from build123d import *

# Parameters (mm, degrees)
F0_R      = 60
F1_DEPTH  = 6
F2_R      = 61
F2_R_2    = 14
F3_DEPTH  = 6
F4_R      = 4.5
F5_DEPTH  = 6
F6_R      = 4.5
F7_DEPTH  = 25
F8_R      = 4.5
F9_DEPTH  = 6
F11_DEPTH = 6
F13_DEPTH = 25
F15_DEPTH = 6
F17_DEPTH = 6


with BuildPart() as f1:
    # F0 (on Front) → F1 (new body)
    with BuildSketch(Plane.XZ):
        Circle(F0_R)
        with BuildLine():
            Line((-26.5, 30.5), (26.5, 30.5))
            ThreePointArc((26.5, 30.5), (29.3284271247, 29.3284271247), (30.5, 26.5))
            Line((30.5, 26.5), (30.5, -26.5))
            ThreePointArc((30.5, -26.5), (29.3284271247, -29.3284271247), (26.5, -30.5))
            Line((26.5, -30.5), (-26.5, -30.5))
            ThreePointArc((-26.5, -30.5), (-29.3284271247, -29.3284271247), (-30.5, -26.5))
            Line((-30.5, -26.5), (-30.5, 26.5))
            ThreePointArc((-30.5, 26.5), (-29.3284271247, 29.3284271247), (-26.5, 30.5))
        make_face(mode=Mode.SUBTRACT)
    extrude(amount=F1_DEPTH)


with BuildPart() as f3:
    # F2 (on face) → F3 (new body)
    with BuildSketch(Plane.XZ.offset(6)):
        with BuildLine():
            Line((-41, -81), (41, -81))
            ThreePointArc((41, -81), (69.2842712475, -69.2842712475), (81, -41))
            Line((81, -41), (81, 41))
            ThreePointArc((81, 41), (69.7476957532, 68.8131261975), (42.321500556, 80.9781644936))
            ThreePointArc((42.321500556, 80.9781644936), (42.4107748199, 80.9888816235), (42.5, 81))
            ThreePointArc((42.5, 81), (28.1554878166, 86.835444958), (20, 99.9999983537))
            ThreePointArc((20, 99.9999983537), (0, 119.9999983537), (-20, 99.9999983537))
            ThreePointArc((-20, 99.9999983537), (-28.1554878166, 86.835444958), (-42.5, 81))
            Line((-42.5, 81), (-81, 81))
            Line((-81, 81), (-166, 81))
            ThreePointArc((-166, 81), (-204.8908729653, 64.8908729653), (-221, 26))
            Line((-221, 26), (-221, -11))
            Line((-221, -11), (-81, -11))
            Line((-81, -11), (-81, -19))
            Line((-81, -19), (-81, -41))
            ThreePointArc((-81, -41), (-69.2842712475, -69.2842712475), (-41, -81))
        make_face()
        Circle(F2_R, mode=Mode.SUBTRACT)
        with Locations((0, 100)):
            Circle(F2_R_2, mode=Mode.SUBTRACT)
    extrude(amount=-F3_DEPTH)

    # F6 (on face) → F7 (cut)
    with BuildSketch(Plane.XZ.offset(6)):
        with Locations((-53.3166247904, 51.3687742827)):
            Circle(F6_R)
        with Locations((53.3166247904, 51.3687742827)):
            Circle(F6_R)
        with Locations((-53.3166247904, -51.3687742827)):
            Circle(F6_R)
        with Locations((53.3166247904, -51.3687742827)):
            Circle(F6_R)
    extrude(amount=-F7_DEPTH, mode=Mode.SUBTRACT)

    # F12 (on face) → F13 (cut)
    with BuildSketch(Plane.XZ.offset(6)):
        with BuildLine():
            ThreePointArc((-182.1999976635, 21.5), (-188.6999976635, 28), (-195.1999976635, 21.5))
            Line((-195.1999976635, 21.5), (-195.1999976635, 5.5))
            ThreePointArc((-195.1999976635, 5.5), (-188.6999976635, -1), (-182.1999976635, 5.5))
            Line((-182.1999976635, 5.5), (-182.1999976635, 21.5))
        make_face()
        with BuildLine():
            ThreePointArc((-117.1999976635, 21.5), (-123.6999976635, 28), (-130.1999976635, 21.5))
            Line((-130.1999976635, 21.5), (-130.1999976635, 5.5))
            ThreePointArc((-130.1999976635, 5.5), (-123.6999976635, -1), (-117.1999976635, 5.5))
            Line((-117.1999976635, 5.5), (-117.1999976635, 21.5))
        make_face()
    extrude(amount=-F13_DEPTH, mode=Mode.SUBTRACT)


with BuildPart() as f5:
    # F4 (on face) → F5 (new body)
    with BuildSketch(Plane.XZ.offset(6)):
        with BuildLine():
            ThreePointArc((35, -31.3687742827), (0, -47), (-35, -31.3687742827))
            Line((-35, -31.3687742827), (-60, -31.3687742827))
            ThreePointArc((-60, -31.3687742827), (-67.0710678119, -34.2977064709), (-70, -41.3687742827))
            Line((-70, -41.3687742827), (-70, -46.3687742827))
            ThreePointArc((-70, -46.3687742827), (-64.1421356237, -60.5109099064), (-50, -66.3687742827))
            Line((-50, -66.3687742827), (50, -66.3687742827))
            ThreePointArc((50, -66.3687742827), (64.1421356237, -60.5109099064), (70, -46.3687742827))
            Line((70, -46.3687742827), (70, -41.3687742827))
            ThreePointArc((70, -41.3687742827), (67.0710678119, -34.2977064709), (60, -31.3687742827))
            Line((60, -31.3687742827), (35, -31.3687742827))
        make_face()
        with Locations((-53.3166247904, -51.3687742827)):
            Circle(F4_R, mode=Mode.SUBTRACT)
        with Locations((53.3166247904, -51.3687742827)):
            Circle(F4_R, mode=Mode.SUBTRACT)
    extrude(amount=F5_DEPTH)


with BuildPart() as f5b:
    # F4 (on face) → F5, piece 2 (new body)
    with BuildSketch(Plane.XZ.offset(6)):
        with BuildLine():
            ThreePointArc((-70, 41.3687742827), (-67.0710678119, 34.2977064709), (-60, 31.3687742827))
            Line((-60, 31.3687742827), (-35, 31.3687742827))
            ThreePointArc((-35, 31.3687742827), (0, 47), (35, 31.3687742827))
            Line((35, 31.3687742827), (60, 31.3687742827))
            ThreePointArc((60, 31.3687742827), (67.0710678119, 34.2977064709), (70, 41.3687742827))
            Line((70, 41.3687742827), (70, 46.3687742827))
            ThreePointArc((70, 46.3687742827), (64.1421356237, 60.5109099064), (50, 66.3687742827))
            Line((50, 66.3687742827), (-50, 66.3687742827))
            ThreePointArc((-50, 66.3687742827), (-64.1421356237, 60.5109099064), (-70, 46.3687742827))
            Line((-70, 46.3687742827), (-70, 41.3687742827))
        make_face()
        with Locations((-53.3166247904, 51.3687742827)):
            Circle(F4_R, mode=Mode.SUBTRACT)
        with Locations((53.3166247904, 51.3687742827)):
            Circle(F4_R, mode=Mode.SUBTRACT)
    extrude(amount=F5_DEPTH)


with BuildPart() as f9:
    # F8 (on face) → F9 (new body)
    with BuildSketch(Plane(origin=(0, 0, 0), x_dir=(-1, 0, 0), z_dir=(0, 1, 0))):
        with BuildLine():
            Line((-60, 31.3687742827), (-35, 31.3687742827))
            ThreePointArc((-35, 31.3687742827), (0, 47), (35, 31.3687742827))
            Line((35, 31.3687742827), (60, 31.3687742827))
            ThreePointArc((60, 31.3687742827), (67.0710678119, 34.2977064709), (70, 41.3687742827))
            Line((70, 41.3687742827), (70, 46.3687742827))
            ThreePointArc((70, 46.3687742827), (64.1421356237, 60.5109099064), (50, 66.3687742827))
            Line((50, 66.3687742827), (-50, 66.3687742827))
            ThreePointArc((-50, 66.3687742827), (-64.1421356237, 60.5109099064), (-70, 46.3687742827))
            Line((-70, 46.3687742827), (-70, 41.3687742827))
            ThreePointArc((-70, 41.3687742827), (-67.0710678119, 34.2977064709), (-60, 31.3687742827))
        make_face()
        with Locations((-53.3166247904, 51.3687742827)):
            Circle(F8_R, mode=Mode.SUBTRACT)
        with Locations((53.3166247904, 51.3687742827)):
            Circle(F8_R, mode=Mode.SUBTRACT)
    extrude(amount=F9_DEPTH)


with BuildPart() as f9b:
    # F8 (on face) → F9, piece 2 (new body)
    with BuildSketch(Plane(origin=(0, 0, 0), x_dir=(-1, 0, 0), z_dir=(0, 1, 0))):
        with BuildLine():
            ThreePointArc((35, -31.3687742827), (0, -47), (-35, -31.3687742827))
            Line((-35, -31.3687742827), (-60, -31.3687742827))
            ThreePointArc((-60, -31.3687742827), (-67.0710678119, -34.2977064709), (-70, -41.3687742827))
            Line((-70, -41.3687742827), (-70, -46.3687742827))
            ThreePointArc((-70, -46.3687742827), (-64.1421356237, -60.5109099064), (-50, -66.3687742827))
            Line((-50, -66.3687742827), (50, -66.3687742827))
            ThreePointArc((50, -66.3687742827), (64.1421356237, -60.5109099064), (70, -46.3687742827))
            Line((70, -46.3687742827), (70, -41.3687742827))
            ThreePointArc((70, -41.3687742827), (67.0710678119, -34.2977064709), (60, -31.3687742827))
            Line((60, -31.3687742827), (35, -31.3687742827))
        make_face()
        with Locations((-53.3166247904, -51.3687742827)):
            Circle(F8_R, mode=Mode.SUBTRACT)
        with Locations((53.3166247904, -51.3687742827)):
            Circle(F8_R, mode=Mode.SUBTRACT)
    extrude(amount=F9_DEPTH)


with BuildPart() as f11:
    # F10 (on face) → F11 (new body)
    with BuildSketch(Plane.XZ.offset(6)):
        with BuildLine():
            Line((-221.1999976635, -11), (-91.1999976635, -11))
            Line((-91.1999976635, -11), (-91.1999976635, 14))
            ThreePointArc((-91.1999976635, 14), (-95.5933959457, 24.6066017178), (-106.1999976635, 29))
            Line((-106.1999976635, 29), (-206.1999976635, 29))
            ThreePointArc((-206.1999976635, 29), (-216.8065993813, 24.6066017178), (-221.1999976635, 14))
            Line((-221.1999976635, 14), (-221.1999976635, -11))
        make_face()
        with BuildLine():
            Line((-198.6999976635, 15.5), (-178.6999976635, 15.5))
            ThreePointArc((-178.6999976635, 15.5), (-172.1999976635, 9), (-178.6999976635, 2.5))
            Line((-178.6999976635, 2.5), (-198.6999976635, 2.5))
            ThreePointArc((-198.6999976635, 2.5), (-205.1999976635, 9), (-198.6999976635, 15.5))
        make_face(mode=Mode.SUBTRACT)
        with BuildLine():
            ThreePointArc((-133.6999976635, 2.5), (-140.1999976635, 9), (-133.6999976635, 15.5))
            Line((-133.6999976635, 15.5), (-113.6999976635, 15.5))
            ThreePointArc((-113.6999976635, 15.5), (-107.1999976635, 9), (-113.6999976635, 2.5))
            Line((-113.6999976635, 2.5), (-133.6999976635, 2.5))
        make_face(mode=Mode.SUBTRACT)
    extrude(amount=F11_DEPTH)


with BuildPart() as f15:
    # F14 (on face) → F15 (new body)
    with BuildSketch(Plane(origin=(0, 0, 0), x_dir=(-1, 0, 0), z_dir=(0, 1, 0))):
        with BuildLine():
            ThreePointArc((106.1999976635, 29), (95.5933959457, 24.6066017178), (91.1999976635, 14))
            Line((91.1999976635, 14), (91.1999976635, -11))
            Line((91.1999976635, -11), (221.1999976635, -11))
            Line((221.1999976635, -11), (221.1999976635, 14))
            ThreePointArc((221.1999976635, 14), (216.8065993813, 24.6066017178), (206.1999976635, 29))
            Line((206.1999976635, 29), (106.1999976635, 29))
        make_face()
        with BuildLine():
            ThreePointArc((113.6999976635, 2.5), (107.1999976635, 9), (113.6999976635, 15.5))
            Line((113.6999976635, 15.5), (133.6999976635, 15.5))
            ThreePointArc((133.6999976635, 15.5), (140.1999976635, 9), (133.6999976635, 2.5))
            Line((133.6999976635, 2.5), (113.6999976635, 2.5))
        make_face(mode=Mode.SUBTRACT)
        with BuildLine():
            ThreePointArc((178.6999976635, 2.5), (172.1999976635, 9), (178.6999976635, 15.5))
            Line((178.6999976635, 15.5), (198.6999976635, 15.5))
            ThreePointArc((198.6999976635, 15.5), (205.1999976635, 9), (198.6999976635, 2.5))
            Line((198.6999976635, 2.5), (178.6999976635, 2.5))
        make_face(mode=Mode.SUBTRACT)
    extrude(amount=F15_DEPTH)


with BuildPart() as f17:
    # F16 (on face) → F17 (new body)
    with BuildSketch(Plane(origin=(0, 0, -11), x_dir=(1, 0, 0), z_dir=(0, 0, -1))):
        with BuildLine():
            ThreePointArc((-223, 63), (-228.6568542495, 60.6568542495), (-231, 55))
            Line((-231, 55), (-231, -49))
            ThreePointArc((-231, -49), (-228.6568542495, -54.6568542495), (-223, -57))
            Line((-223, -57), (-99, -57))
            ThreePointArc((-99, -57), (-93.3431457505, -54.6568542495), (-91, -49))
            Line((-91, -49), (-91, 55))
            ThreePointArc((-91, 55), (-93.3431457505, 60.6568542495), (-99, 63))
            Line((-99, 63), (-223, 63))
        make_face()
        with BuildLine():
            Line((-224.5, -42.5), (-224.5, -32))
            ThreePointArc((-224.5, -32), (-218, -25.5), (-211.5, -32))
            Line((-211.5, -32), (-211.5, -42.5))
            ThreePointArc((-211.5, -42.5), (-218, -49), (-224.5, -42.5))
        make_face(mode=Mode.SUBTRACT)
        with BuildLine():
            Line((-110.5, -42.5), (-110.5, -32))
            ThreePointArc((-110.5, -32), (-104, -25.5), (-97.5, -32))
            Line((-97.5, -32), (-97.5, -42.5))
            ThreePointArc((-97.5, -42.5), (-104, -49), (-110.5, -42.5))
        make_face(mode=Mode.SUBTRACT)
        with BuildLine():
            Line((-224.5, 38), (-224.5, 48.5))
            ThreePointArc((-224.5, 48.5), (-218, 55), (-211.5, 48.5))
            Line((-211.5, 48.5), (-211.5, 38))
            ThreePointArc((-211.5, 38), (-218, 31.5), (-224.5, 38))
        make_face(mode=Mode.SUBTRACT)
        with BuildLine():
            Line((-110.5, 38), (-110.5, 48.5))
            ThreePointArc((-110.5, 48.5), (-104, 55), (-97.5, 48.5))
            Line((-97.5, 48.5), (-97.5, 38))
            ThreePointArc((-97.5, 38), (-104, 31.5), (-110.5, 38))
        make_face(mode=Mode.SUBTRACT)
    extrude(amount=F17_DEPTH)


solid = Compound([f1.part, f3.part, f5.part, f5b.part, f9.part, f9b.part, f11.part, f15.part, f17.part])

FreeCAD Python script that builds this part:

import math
import FreeCAD as App
import Part
import Sketcher
from FreeCAD import Vector

doc = App.newDocument("Part")
body = doc.addObject("PartDesign::Body", "Body")

# Sketch on XZ plane
sketch1 = body.newObject("Sketcher::SketchObject", "Sketch")
sketch1.AttachmentSupport = (doc.getObject("XZ_Plane"), [""])
sketch1.MapMode = "FlatFace"
sketch1.addGeometry(Part.Circle(Vector(0, 0, 0), Vector(0, 0, 1), 60), False)
sketch1.addGeometry(Part.ArcOfCircle(Part.Circle(Vector(-26.5, 26.5, 0), Vector(0, 0, 1), 4), math.radians(90), math.radians(180)), False)
sketch1.addGeometry(Part.LineSegment(Vector(-26.5, 30.5, 0), Vector(26.5, 30.5, 0)), False)
sketch1.addGeometry(Part.ArcOfCircle(Part.Circle(Vector(26.5, 26.5, 0), Vector(0, 0, 1), 4), math.radians(0), math.radians(90)), False)
sketch1.addGeometry(Part.LineSegment(Vector(30.5, 26.5, 0), Vector(30.5, -26.5, 0)), False)
sketch1.addGeometry(Part.ArcOfCircle(Part.Circle(Vector(26.5, -26.5, 0), Vector(0, 0, 1), 4), math.radians(-90), math.radians(0)), False)
sketch1.addGeometry(Part.LineSegment(Vector(26.5, -30.5, 0), Vector(-26.5, -30.5, 0)), False)
sketch1.addGeometry(Part.ArcOfCircle(Part.Circle(Vector(-26.5, -26.5, 0), Vector(0, 0, 1), 4), math.radians(180), math.radians(270)), False)
sketch1.addGeometry(Part.LineSegment(Vector(-30.5, -26.5, 0), Vector(-30.5, 26.5, 0)), False)
sketch1.addConstraint(Sketcher.Constraint("Tangent", 1, 1, 2, 1))
sketch1.addConstraint(Sketcher.Constraint("Tangent", 2, 2, 3, 2))
sketch1.addConstraint(Sketcher.Constraint("Tangent", 3, 1, 4, 1))
sketch1.addConstraint(Sketcher.Constraint("Tangent", 4, 2, 5, 2))
sketch1.addConstraint(Sketcher.Constraint("Tangent", 5, 1, 6, 1))
sketch1.addConstraint(Sketcher.Constraint("Tangent", 6, 2, 7, 2))
sketch1.addConstraint(Sketcher.Constraint("Tangent", 7, 1, 8, 1))
sketch1.addConstraint(Sketcher.Constraint("Tangent", 8, 2, 1, 2))
sketch1.addConstraint(Sketcher.Constraint("Horizontal", 2))
sketch1.addConstraint(Sketcher.Constraint("Vertical", 4))
sketch1.addConstraint(Sketcher.Constraint("Horizontal", 6))
sketch1.addConstraint(Sketcher.Constraint("Vertical", 8))
sketch1.addConstraint(Sketcher.Constraint("Coincident", 0, 3, -1, 1))
sketch1.addConstraint(Sketcher.Constraint("Equal", 1, 3))
sketch1.addConstraint(Sketcher.Constraint("Equal", 3, 5))
sketch1.addConstraint(Sketcher.Constraint("Equal", 5, 7))
sketch1.addConstraint(Sketcher.Constraint("Symmetric", 1, 3, 5, 3, -1, 1))
sketch1.addConstraint(Sketcher.Constraint("Equal", 6, 4))
sketch1.addConstraint(Sketcher.Constraint("Diameter", 0, 120.0))
sketch1.addConstraint(Sketcher.Constraint("Radius", 1, 4.0))
sketch1.addConstraint(Sketcher.Constraint("DistanceX", 2, 1, 2, 2, 53.0))
pad1 = body.newObject("PartDesign::Pad", "Pad")
pad1.Profile = sketch1
pad1.Length = 6
body2 = doc.addObject("PartDesign::Body", "Body001")

# Sketch on XZ plane
sketch2 = body2.newObject("Sketcher::SketchObject", "Sketch001")
sketch2.AttachmentSupport = (doc.getObject("XZ_Plane001"), [""])
sketch2.MapMode = "FlatFace"
sketch2.AttachmentOffset = App.Placement(Vector(0, 0, 6), App.Rotation())
sketch2.addGeometry(Part.LineSegment(Vector(-41, -81, 0), Vector(41, -81, 0)), False)
sketch2.addGeometry(Part.ArcOfCircle(Part.Circle(Vector(41, -41, 0), Vector(0, 0, 1), 40), math.radians(-90), math.radians(0)), False)
sketch2.addGeometry(Part.LineSegment(Vector(81, -41, 0), Vector(81, 41, 0)), False)
sketch2.addGeometry(Part.ArcOfCircle(Part.Circle(Vector(41, 41, 0), Vector(0, 0, 1), 40), math.radians(0), math.radians(88.106745)), False)
sketch2.addGeometry(Part.ArcOfCircle(Part.Circle(Vector(39.982315, 100.840895, 0), Vector(0, 0, 1), 19.999997), math.radians(-83.283352), math.radians(-82.768175)), False)
sketch2.addGeometry(Part.ArcOfCircle(Part.Circle(Vector(44.285007, 105.936194, 0), Vector(0, 0, 1), 25), math.radians(-166.264043), math.radians(-94.09442)), False)
sketch2.addGeometry(Part.ArcOfCircle(Part.Circle(Vector(0, 99.999998, 0), Vector(0, 0, 1), 20), math.radians(0), math.radians(180)), False)
sketch2.addGeometry(Part.ArcOfCircle(Part.Circle(Vector(-44.285007, 105.936194, 0), Vector(0, 0, 1), 25), math.radians(-85.90558), math.radians(-13.735957)), False)
sketch2.addGeometry(Part.LineSegment(Vector(-42.5, 81, 0), Vector(-166, 81, 0)), False)
sketch2.addGeometry(Part.ArcOfCircle(Part.Circle(Vector(-166, 26, 0), Vector(0, 0, 1), 55), math.radians(90), math.radians(180)), False)
sketch2.addGeometry(Part.LineSegment(Vector(-221, 26, 0), Vector(-221, -11, 0)), False)
sketch2.addGeometry(Part.LineSegment(Vector(-221, -11, 0), Vector(-81, -11, 0)), False)
sketch2.addGeometry(Part.LineSegment(Vector(-81, -11, 0), Vector(-81, -41, 0)), False)
sketch2.addGeometry(Part.ArcOfCircle(Part.Circle(Vector(-41, -41, 0), Vector(0, 0, 1), 40), math.radians(180), math.radians(270)), False)
sketch2.addGeometry(Part.Circle(Vector(0, 0, 0), Vector(0, 0, 1), 61), False)
sketch2.addGeometry(Part.Circle(Vector(0, 100, 0), Vector(0, 0, 1), 14), False)
sketch2.addConstraint(Sketcher.Constraint("Tangent", 0, 2, 1, 1))
sketch2.addConstraint(Sketcher.Constraint("Tangent", 1, 2, 2, 1))
sketch2.addConstraint(Sketcher.Constraint("Tangent", 2, 2, 3, 1))
sketch2.addConstraint(Sketcher.Constraint("Coincident", 3, 2, 4, 1))
sketch2.addConstraint(Sketcher.Constraint("Coincident", 4, 2, 5, 2))
sketch2.addConstraint(Sketcher.Constraint("Coincident", 5, 1, 6, 1))
sketch2.addConstraint(Sketcher.Constraint("Coincident", 6, 2, 7, 2))
sketch2.addConstraint(Sketcher.Constraint("Coincident", 7, 1, 8, 1))
sketch2.addConstraint(Sketcher.Constraint("Tangent", 8, 2, 9, 1))
sketch2.addConstraint(Sketcher.Constraint("Tangent", 9, 2, 10, 1))
sketch2.addConstraint(Sketcher.Constraint("Coincident", 10, 2, 11, 1))
sketch2.addConstraint(Sketcher.Constraint("Coincident", 11, 2, 12, 1))
sketch2.addConstraint(Sketcher.Constraint("Tangent", 12, 2, 13, 1))
sketch2.addConstraint(Sketcher.Constraint("Tangent", 13, 2, 0, 1))
sketch2.addConstraint(Sketcher.Constraint("Horizontal", 0))
sketch2.addConstraint(Sketcher.Constraint("Vertical", 2))
sketch2.addConstraint(Sketcher.Constraint("Horizontal", 8))
sketch2.addConstraint(Sketcher.Constraint("Vertical", 10))
sketch2.addConstraint(Sketcher.Constraint("Horizontal", 11))
sketch2.addConstraint(Sketcher.Constraint("Vertical", 12))
sketch2.addConstraint(Sketcher.Constraint("Coincident", 14, 3, -1, 1))
sketch2.addConstraint(Sketcher.Constraint("Coincident", 15, 3, 6, 3))
sketch2.addConstraint(Sketcher.Constraint("Equal", 1, 3))
sketch2.addConstraint(Sketcher.Constraint("Equal", 5, 7))
sketch2.addConstraint(Sketcher.Constraint("Equal", 3, 13))
sketch2.addConstraint(Sketcher.Constraint("Symmetric", 3, 3, 13, 3, -1, 1))
sketch2.addConstraint(Sketcher.Constraint("Symmetric", 5, 3, 7, 3, -2))
sketch2.addConstraint(Sketcher.Constraint("PointOnObject", 6, 3, -2))
sketch2.addConstraint(Sketcher.Constraint("Horizontal", 15, 3, 5, 1))
sketch2.addConstraint(Sketcher.Constraint("Horizontal", 4, 2, 7, 1))
sketch2.addConstraint(Sketcher.Constraint("Equal", 0, 2))
sketch2.addConstraint(Sketcher.Constraint("Diameter", 14, 122.0))
sketch2.addConstraint(Sketcher.Constraint("Diameter", 15, 28.0))
sketch2.addConstraint(Sketcher.Constraint("Radius", 1, 40.0))
sketch2.addConstraint(Sketcher.Constraint("Radius", 5, 25.0))
sketch2.addConstraint(Sketcher.Constraint("Radius", 6, 20.0))
sketch2.addConstraint(Sketcher.Constraint("Radius", 9, 55.0))
sketch2.addConstraint(Sketcher.Constraint("DistanceX", 0, 1, 0, 2, 82.0))
sketch2.addConstraint(Sketcher.Constraint("DistanceX", 11, 1, 11, 2, 140.0))
sketch2.addConstraint(Sketcher.Constraint("DistanceY", 10, 2, 10, 1, 37.0))
sketch2.addConstraint(Sketcher.Constraint("DistanceY", 12, 2, 12, 1, 30.0))
sketch2.addConstraint(Sketcher.Constraint("DistanceX", 8, 2, 8, 1, 123.5))
sketch2.addConstraint(Sketcher.Constraint("DistanceY", -1, 1, 6, 3, 99.999998))
sketch2.addConstraint(Sketcher.Constraint("Radius", 4, 19.999997))
sketch2.addConstraint(Sketcher.Constraint("DistanceY", 4, 3, 5, 3, 5.095298))
pad2 = body2.newObject("PartDesign::Pad", "Pad001")
pad2.Profile = sketch2
pad2.Length = 6
pad2.Reversed = True

# Sketch on XZ plane
sketch3 = body2.newObject("Sketcher::SketchObject", "Sketch002")
sketch3.AttachmentSupport = (doc.getObject("XZ_Plane001"), [""])
sketch3.MapMode = "FlatFace"
sketch3.AttachmentOffset = App.Placement(Vector(0, 0, 6), App.Rotation())
sketch3.addGeometry(Part.Circle(Vector(-53.316625, 51.368774, 0), Vector(0, 0, 1), 4.5), False)
sketch3.addGeometry(Part.Circle(Vector(53.316625, 51.368774, 0), Vector(0, 0, 1), 4.5), False)
sketch3.addGeometry(Part.Circle(Vector(-53.316625, -51.368774, 0), Vector(0, 0, 1), 4.5), False)
sketch3.addGeometry(Part.Circle(Vector(53.316625, -51.368774, 0), Vector(0, 0, 1), 4.5), False)
sketch3.addConstraint(Sketcher.Constraint("Equal", 0, 1))
sketch3.addConstraint(Sketcher.Constraint("Equal", 1, 2))
sketch3.addConstraint(Sketcher.Constraint("Equal", 2, 3))
sketch3.addConstraint(Sketcher.Constraint("Symmetric", 1, 3, 2, 3, -1, 1))
sketch3.addConstraint(Sketcher.Constraint("Symmetric", 0, 3, 3, 3, -1, 1))
sketch3.addConstraint(Sketcher.Constraint("Symmetric", 0, 3, 1, 3, -2))
sketch3.addConstraint(Sketcher.Constraint("Diameter", 0, 9.0))
sketch3.addConstraint(Sketcher.Constraint("DistanceX", 0, 3, 1, 3, 106.63325))
sketch3.addConstraint(Sketcher.Constraint("DistanceY", 2, 3, 0, 3, 102.737549))
pocket1 = body2.newObject("PartDesign::Pocket", "Pocket")
pocket1.Profile = sketch3
pocket1.Length = 25

# Sketch on XZ plane
sketch4 = body2.newObject("Sketcher::SketchObject", "Sketch003")
sketch4.AttachmentSupport = (doc.getObject("XZ_Plane001"), [""])
sketch4.MapMode = "FlatFace"
sketch4.AttachmentOffset = App.Placement(Vector(0, 0, 6), App.Rotation())
sketch4.addGeometry(Part.ArcOfCircle(Part.Circle(Vector(-188.699998, 21.5, 0), Vector(0, 0, 1), 6.5), math.radians(0), math.radians(180)), False)
sketch4.addGeometry(Part.LineSegment(Vector(-195.199998, 21.5, 0), Vector(-195.199998, 5.5, 0)), False)
sketch4.addGeometry(Part.ArcOfCircle(Part.Circle(Vector(-188.699998, 5.5, 0), Vector(0, 0, 1), 6.5), math.radians(180), math.radians(360)), False)
sketch4.addGeometry(Part.LineSegment(Vector(-182.199998, 5.5, 0), Vector(-182.199998, 21.5, 0)), False)
sketch4.addGeometry(Part.ArcOfCircle(Part.Circle(Vector(-123.699998, 21.5, 0), Vector(0, 0, 1), 6.5), math.radians(0), math.radians(180)), False)
sketch4.addGeometry(Part.LineSegment(Vector(-130.199998, 21.5, 0), Vector(-130.199998, 5.5, 0)), False)
sketch4.addGeometry(Part.ArcOfCircle(Part.Circle(Vector(-123.699998, 5.5, 0), Vector(0, 0, 1), 6.5), math.radians(180), math.radians(360)), False)
sketch4.addGeometry(Part.LineSegment(Vector(-117.199998, 5.5, 0), Vector(-117.199998, 21.5, 0)), False)
sketch4.addConstraint(Sketcher.Constraint("Tangent", 0, 2, 1, 1))
sketch4.addConstraint(Sketcher.Constraint("Tangent", 1, 2, 2, 1))
sketch4.addConstraint(Sketcher.Constraint("Tangent", 2, 2, 3, 1))
sketch4.addConstraint(Sketcher.Constraint("Tangent", 3, 2, 0, 1))
sketch4.addConstraint(Sketcher.Constraint("Tangent", 4, 2, 5, 1))
sketch4.addConstraint(Sketcher.Constraint("Tangent", 5, 2, 6, 1))
sketch4.addConstraint(Sketcher.Constraint("Tangent", 6, 2, 7, 1))
sketch4.addConstraint(Sketcher.Constraint("Tangent", 7, 2, 4, 1))
sketch4.addConstraint(Sketcher.Constraint("Vertical", 1))
sketch4.addConstraint(Sketcher.Constraint("Vertical", 3))
sketch4.addConstraint(Sketcher.Constraint("Vertical", 5))
sketch4.addConstraint(Sketcher.Constraint("Vertical", 7))
sketch4.addConstraint(Sketcher.Constraint("Equal", 2, 4))
sketch4.addConstraint(Sketcher.Constraint("Horizontal", 0, 3, 4, 3))
sketch4.addConstraint(Sketcher.Constraint("Horizontal", 2, 3, 6, 3))
sketch4.addConstraint(Sketcher.Constraint("Radius", 0, 6.5))
sketch4.addConstraint(Sketcher.Constraint("DistanceY", 1, 2, 1, 1, 16.0))
sketch4.addConstraint(Sketcher.Constraint("DistanceX", 0, 3, 4, 3, 65.0))
sketch4.addConstraint(Sketcher.Constraint("DistanceY", -1, 1, 0, 3, 21.5))
sketch4.addConstraint(Sketcher.Constraint("DistanceX", 0, 3, -1, 1, 188.699998))
pocket2 = body2.newObject("PartDesign::Pocket", "Pocket001")
pocket2.Profile = sketch4
pocket2.Length = 25
body3 = doc.addObject("PartDesign::Body", "Body002")

# Sketch on XZ plane
sketch5 = body3.newObject("Sketcher::SketchObject", "Sketch004")
sketch5.AttachmentSupport = (doc.getObject("XZ_Plane002"), [""])
sketch5.MapMode = "FlatFace"
sketch5.AttachmentOffset = App.Placement(Vector(0, 0, 6), App.Rotation())
sketch5.addGeometry(Part.ArcOfCircle(Part.Circle(Vector(0, 0, 0), Vector(0, 0, 1), 47), math.radians(-138.131694), math.radians(-41.868306)), False)
sketch5.addGeometry(Part.LineSegment(Vector(-35, -31.368774, 0), Vector(-60, -31.368774, 0)), False)
sketch5.addGeometry(Part.ArcOfCircle(Part.Circle(Vector(-60, -41.368774, 0), Vector(0, 0, 1), 10), math.radians(90), math.radians(180)), False)
sketch5.addGeometry(Part.LineSegment(Vector(-70, -41.368774, 0), Vector(-70, -46.368774, 0)), False)
sketch5.addGeometry(Part.ArcOfCircle(Part.Circle(Vector(-50, -46.368774, 0), Vector(0, 0, 1), 20), math.radians(180), math.radians(270)), False)
sketch5.addGeometry(Part.LineSegment(Vector(-50, -66.368774, 0), Vector(50, -66.368774, 0)), False)
sketch5.addGeometry(Part.ArcOfCircle(Part.Circle(Vector(50, -46.368774, 0), Vector(0, 0, 1), 20), math.radians(-90), math.radians(0)), False)
sketch5.addGeometry(Part.LineSegment(Vector(70, -46.368774, 0), Vector(70, -41.368774, 0)), False)
sketch5.addGeometry(Part.ArcOfCircle(Part.Circle(Vector(60, -41.368774, 0), Vector(0, 0, 1), 10), math.radians(0), math.radians(90)), False)
sketch5.addGeometry(Part.LineSegment(Vector(60, -31.368774, 0), Vector(35, -31.368774, 0)), False)
sketch5.addGeometry(Part.Circle(Vector(-53.316625, -51.368774, 0), Vector(0, 0, 1), 4.5), False)
sketch5.addGeometry(Part.Circle(Vector(53.316625, -51.368774, 0), Vector(0, 0, 1), 4.5), False)
sketch5.addConstraint(Sketcher.Constraint("Coincident", 0, 1, 1, 1))
sketch5.addConstraint(Sketcher.Constraint("Tangent", 1, 2, 2, 1))
sketch5.addConstraint(Sketcher.Constraint("Tangent", 2, 2, 3, 1))
sketch5.addConstraint(Sketcher.Constraint("Tangent", 3, 2, 4, 1))
sketch5.addConstraint(Sketcher.Constraint("Tangent", 4, 2, 5, 1))
sketch5.addConstraint(Sketcher.Constraint("Tangent", 5, 2, 6, 1))
sketch5.addConstraint(Sketcher.Constraint("Tangent", 6, 2, 7, 1))
sketch5.addConstraint(Sketcher.Constraint("Tangent", 7, 2, 8, 1))
sketch5.addConstraint(Sketcher.Constraint("Tangent", 8, 2, 9, 1))
sketch5.addConstraint(Sketcher.Constraint("Coincident", 9, 2, 0, 2))
sketch5.addConstraint(Sketcher.Constraint("Horizontal", 1))
sketch5.addConstraint(Sketcher.Constraint("Vertical", 3))
sketch5.addConstraint(Sketcher.Constraint("Horizontal", 5))
sketch5.addConstraint(Sketcher.Constraint("Vertical", 7))
sketch5.addConstraint(Sketcher.Constraint("Horizontal", 9))
sketch5.addConstraint(Sketcher.Constraint("Coincident", 0, 3, -1, 1))
sketch5.addConstraint(Sketcher.Constraint("Equal", 4, 6))
sketch5.addConstraint(Sketcher.Constraint("Equal", 2, 8))
sketch5.addConstraint(Sketcher.Constraint("Equal", 10, 11))
sketch5.addConstraint(Sketcher.Constraint("Symmetric", 2, 3, 8, 3, -2))
sketch5.addConstraint(Sketcher.Constraint("Symmetric", 10, 3, 11, 3, -2))
sketch5.addConstraint(Sketcher.Constraint("Diameter", 10, 9.0))
sketch5.addConstraint(Sketcher.Constraint("Radius", 0, 47.0))
sketch5.addConstraint(Sketcher.Constraint("Radius", 2, 10.0))
sketch5.addConstraint(Sketcher.Constraint("Radius", 4, 20.0))
sketch5.addConstraint(Sketcher.Constraint("DistanceX", 1, 2, 1, 1, 25.0))
sketch5.addConstraint(Sketcher.Constraint("DistanceX", 5, 1, 5, 2, 100.0))
sketch5.addConstraint(Sketcher.Constraint("DistanceY", 3, 2, 3, 1, 5.0))
sketch5.addConstraint(Sketcher.Constraint("DistanceY", 10, 3, 4, 3, 5.0))
sketch5.addConstraint(Sketcher.Constraint("DistanceX", 10, 3, 11, 3, 106.63325))
pad3 = body3.newObject("PartDesign::Pad", "Pad002")
pad3.Profile = sketch5
pad3.Length = 6
body4 = doc.addObject("PartDesign::Body", "Body003")

# Sketch on XZ plane
sketch6 = body4.newObject("Sketcher::SketchObject", "Sketch005")
sketch6.AttachmentSupport = (doc.getObject("XZ_Plane003"), [""])
sketch6.MapMode = "FlatFace"
sketch6.AttachmentOffset = App.Placement(Vector(0, 0, 6), App.Rotation())
sketch6.addGeometry(Part.ArcOfCircle(Part.Circle(Vector(-60, 41.368774, 0), Vector(0, 0, 1), 10), math.radians(180), math.radians(270)), False)
sketch6.addGeometry(Part.LineSegment(Vector(-60, 31.368774, 0), Vector(-35, 31.368774, 0)), False)
sketch6.addGeometry(Part.ArcOfCircle(Part.Circle(Vector(0, 0, 0), Vector(0, 0, 1), 47), math.radians(41.868306), math.radians(138.131694)), False)
sketch6.addGeometry(Part.LineSegment(Vector(35, 31.368774, 0), Vector(60, 31.368774, 0)), False)
sketch6.addGeometry(Part.ArcOfCircle(Part.Circle(Vector(60, 41.368774, 0), Vector(0, 0, 1), 10), math.radians(-90), math.radians(0)), False)
sketch6.addGeometry(Part.LineSegment(Vector(70, 41.368774, 0), Vector(70, 46.368774, 0)), False)
sketch6.addGeometry(Part.ArcOfCircle(Part.Circle(Vector(50, 46.368774, 0), Vector(0, 0, 1), 20), math.radians(0), math.radians(90)), False)
sketch6.addGeometry(Part.LineSegment(Vector(50, 66.368774, 0), Vector(-50, 66.368774, 0)), False)
sketch6.addGeometry(Part.ArcOfCircle(Part.Circle(Vector(-50, 46.368774, 0), Vector(0, 0, 1), 20), math.radians(90), math.radians(180)), False)
sketch6.addGeometry(Part.LineSegment(Vector(-70, 46.368774, 0), Vector(-70, 41.368774, 0)), False)
sketch6.addGeometry(Part.Circle(Vector(-53.316625, 51.368774, 0), Vector(0, 0, 1), 4.5), False)
sketch6.addGeometry(Part.Circle(Vector(53.316625, 51.368774, 0), Vector(0, 0, 1), 4.5), False)
sketch6.addConstraint(Sketcher.Constraint("Tangent", 0, 2, 1, 1))
sketch6.addConstraint(Sketcher.Constraint("Coincident", 1, 2, 2, 2))
sketch6.addConstraint(Sketcher.Constraint("Coincident", 2, 1, 3, 1))
sketch6.addConstraint(Sketcher.Constraint("Tangent", 3, 2, 4, 1))
sketch6.addConstraint(Sketcher.Constraint("Tangent", 4, 2, 5, 1))
sketch6.addConstraint(Sketcher.Constraint("Tangent", 5, 2, 6, 1))
sketch6.addConstraint(Sketcher.Constraint("Tangent", 6, 2, 7, 1))
sketch6.addConstraint(Sketcher.Constraint("Tangent", 7, 2, 8, 1))
sketch6.addConstraint(Sketcher.Constraint("Tangent", 8, 2, 9, 1))
sketch6.addConstraint(Sketcher.Constraint("Tangent", 9, 2, 0, 1))
sketch6.addConstraint(Sketcher.Constraint("Horizontal", 1))
sketch6.addConstraint(Sketcher.Constraint("Horizontal", 3))
sketch6.addConstraint(Sketcher.Constraint("Vertical", 5))
sketch6.addConstraint(Sketcher.Constraint("Horizontal", 7))
sketch6.addConstraint(Sketcher.Constraint("Vertical", 9))
sketch6.addConstraint(Sketcher.Constraint("Coincident", 2, 3, -1, 1))
sketch6.addConstraint(Sketcher.Constraint("Equal", 0, 4))
sketch6.addConstraint(Sketcher.Constraint("Equal", 6, 8))
sketch6.addConstraint(Sketcher.Constraint("Equal", 10, 11))
sketch6.addConstraint(Sketcher.Constraint("Symmetric", 0, 3, 4, 3, -2))
sketch6.addConstraint(Sketcher.Constraint("Symmetric", 10, 3, 11, 3, -2))
sketch6.addConstraint(Sketcher.Constraint("Diameter", 10, 9.0))
sketch6.addConstraint(Sketcher.Constraint("Radius", 0, 10.0))
sketch6.addConstraint(Sketcher.Constraint("Radius", 2, 47.0))
sketch6.addConstraint(Sketcher.Constraint("Radius", 6, 20.0))
sketch6.addConstraint(Sketcher.Constraint("DistanceX", 1, 1, 1, 2, 25.0))
sketch6.addConstraint(Sketcher.Constraint("DistanceX", 7, 2, 7, 1, 100.0))
sketch6.addConstraint(Sketcher.Constraint("DistanceY", 5, 1, 5, 2, 5.0))
sketch6.addConstraint(Sketcher.Constraint("DistanceY", 8, 3, 10, 3, 5.0))
sketch6.addConstraint(Sketcher.Constraint("DistanceX", 10, 3, 11, 3, 106.63325))
pad4 = body4.newObject("PartDesign::Pad", "Pad003")
pad4.Profile = sketch6
pad4.Length = 6
body5 = doc.addObject("PartDesign::Body", "Body004")

# Sketch on XZ plane
sketch7 = body5.newObject("Sketcher::SketchObject", "Sketch006")
sketch7.AttachmentSupport = (doc.getObject("XZ_Plane004"), [""])
sketch7.MapMode = "FlatFace"
sketch7.addGeometry(Part.LineSegment(Vector(60, 31.368774, 0), Vector(35, 31.368774, 0)), False)
sketch7.addGeometry(Part.ArcOfCircle(Part.Circle(Vector(0, 0, 0), Vector(0, 0, 1), 47), math.radians(41.868306), math.radians(138.131694)), False)
sketch7.addGeometry(Part.LineSegment(Vector(-35, 31.368774, 0), Vector(-60, 31.368774, 0)), False)
sketch7.addGeometry(Part.ArcOfCircle(Part.Circle(Vector(-60, 41.368774, 0), Vector(0, 0, 1), 10), math.radians(180), math.radians(270)), False)
sketch7.addGeometry(Part.LineSegment(Vector(-70, 41.368774, 0), Vector(-70, 46.368774, 0)), False)
sketch7.addGeometry(Part.ArcOfCircle(Part.Circle(Vector(-50, 46.368774, 0), Vector(0, 0, 1), 20), math.radians(90), math.radians(180)), False)
sketch7.addGeometry(Part.LineSegment(Vector(-50, 66.368774, 0), Vector(50, 66.368774, 0)), False)
sketch7.addGeometry(Part.ArcOfCircle(Part.Circle(Vector(50, 46.368774, 0), Vector(0, 0, 1), 20), math.radians(0), math.radians(90)), False)
sketch7.addGeometry(Part.LineSegment(Vector(70, 46.368774, 0), Vector(70, 41.368774, 0)), False)
sketch7.addGeometry(Part.ArcOfCircle(Part.Circle(Vector(60, 41.368774, 0), Vector(0, 0, 1), 10), math.radians(-90), math.radians(0)), False)
sketch7.addGeometry(Part.Circle(Vector(53.316625, 51.368774, 0), Vector(0, 0, 1), 4.5), False)
sketch7.addGeometry(Part.Circle(Vector(-53.316625, 51.368774, 0), Vector(0, 0, 1), 4.5), False)
sketch7.addConstraint(Sketcher.Constraint("Coincident", 0, 2, 1, 1))
sketch7.addConstraint(Sketcher.Constraint("Coincident", 1, 2, 2, 1))
sketch7.addConstraint(Sketcher.Constraint("Tangent", 2, 2, 3, 2))
sketch7.addConstraint(Sketcher.Constraint("Tangent", 3, 1, 4, 1))
sketch7.addConstraint(Sketcher.Constraint("Tangent", 4, 2, 5, 2))
sketch7.addConstraint(Sketcher.Constraint("Tangent", 5, 1, 6, 1))
sketch7.addConstraint(Sketcher.Constraint("Tangent", 6, 2, 7, 2))
sketch7.addConstraint(Sketcher.Constraint("Tangent", 7, 1, 8, 1))
sketch7.addConstraint(Sketcher.Constraint("Tangent", 8, 2, 9, 2))
sketch7.addConstraint(Sketcher.Constraint("Tangent", 9, 1, 0, 1))
sketch7.addConstraint(Sketcher.Constraint("Horizontal", 0))
sketch7.addConstraint(Sketcher.Constraint("Horizontal", 2))
sketch7.addConstraint(Sketcher.Constraint("Vertical", 4))
sketch7.addConstraint(Sketcher.Constraint("Horizontal", 6))
sketch7.addConstraint(Sketcher.Constraint("Vertical", 8))
sketch7.addConstraint(Sketcher.Constraint("Coincident", 1, 3, -1, 1))
sketch7.addConstraint(Sketcher.Constraint("Equal", 5, 7))
sketch7.addConstraint(Sketcher.Constraint("Equal", 3, 9))
sketch7.addConstraint(Sketcher.Constraint("Equal", 10, 11))
sketch7.addConstraint(Sketcher.Constraint("Symmetric", 3, 3, 9, 3, -2))
sketch7.addConstraint(Sketcher.Constraint("Symmetric", 10, 3, 11, 3, -2))
sketch7.addConstraint(Sketcher.Constraint("Diameter", 10, 9.0))
sketch7.addConstraint(Sketcher.Constraint("Radius", 1, 47.0))
sketch7.addConstraint(Sketcher.Constraint("Radius", 3, 10.0))
sketch7.addConstraint(Sketcher.Constraint("Radius", 5, 20.0))
sketch7.addConstraint(Sketcher.Constraint("DistanceX", 0, 2, 0, 1, 25.0))
sketch7.addConstraint(Sketcher.Constraint("DistanceX", 6, 1, 6, 2, 100.0))
sketch7.addConstraint(Sketcher.Constraint("DistanceY", 4, 1, 4, 2, 5.0))
sketch7.addConstraint(Sketcher.Constraint("DistanceY", 7, 3, 10, 3, 5.0))
sketch7.addConstraint(Sketcher.Constraint("DistanceX", 11, 3, 10, 3, 106.63325))
pad5 = body5.newObject("PartDesign::Pad", "Pad004")
pad5.Profile = sketch7
pad5.Length = 6
pad5.Reversed = True
body6 = doc.addObject("PartDesign::Body", "Body005")

# Sketch on XZ plane
sketch8 = body6.newObject("Sketcher::SketchObject", "Sketch007")
sketch8.AttachmentSupport = (doc.getObject("XZ_Plane005"), [""])
sketch8.MapMode = "FlatFace"
sketch8.addGeometry(Part.ArcOfCircle(Part.Circle(Vector(0, 0, 0), Vector(0, 0, 1), 47), math.radians(-138.131694), math.radians(-41.868306)), False)
sketch8.addGeometry(Part.LineSegment(Vector(35, -31.368774, 0), Vector(60, -31.368774, 0)), False)
sketch8.addGeometry(Part.ArcOfCircle(Part.Circle(Vector(60, -41.368774, 0), Vector(0, 0, 1), 10), math.radians(0), math.radians(90)), False)
sketch8.addGeometry(Part.LineSegment(Vector(70, -41.368774, 0), Vector(70, -46.368774, 0)), False)
sketch8.addGeometry(Part.ArcOfCircle(Part.Circle(Vector(50, -46.368774, 0), Vector(0, 0, 1), 20), math.radians(-90), math.radians(0)), False)
sketch8.addGeometry(Part.LineSegment(Vector(50, -66.368774, 0), Vector(-50, -66.368774, 0)), False)
sketch8.addGeometry(Part.ArcOfCircle(Part.Circle(Vector(-50, -46.368774, 0), Vector(0, 0, 1), 20), math.radians(180), math.radians(270)), False)
sketch8.addGeometry(Part.LineSegment(Vector(-70, -46.368774, 0), Vector(-70, -41.368774, 0)), False)
sketch8.addGeometry(Part.ArcOfCircle(Part.Circle(Vector(-60, -41.368774, 0), Vector(0, 0, 1), 10), math.radians(90), math.radians(180)), False)
sketch8.addGeometry(Part.LineSegment(Vector(-60, -31.368774, 0), Vector(-35, -31.368774, 0)), False)
sketch8.addGeometry(Part.Circle(Vector(53.316625, -51.368774, 0), Vector(0, 0, 1), 4.5), False)
sketch8.addGeometry(Part.Circle(Vector(-53.316625, -51.368774, 0), Vector(0, 0, 1), 4.5), False)
sketch8.addConstraint(Sketcher.Constraint("Coincident", 0, 2, 1, 1))
sketch8.addConstraint(Sketcher.Constraint("Tangent", 1, 2, 2, 2))
sketch8.addConstraint(Sketcher.Constraint("Tangent", 2, 1, 3, 1))
sketch8.addConstraint(Sketcher.Constraint("Tangent", 3, 2, 4, 2))
sketch8.addConstraint(Sketcher.Constraint("Tangent", 4, 1, 5, 1))
sketch8.addConstraint(Sketcher.Constraint("Tangent", 5, 2, 6, 2))
sketch8.addConstraint(Sketcher.Constraint("Tangent", 6, 1, 7, 1))
sketch8.addConstraint(Sketcher.Constraint("Tangent", 7, 2, 8, 2))
sketch8.addConstraint(Sketcher.Constraint("Tangent", 8, 1, 9, 1))
sketch8.addConstraint(Sketcher.Constraint("Coincident", 9, 2, 0, 1))
sketch8.addConstraint(Sketcher.Constraint("Horizontal", 1))
sketch8.addConstraint(Sketcher.Constraint("Vertical", 3))
sketch8.addConstraint(Sketcher.Constraint("Horizontal", 5))
sketch8.addConstraint(Sketcher.Constraint("Vertical", 7))
sketch8.addConstraint(Sketcher.Constraint("Horizontal", 9))
sketch8.addConstraint(Sketcher.Constraint("Coincident", 0, 3, -1, 1))
sketch8.addConstraint(Sketcher.Constraint("Equal", 4, 6))
sketch8.addConstraint(Sketcher.Constraint("Equal", 2, 8))
sketch8.addConstraint(Sketcher.Constraint("Equal", 10, 11))
sketch8.addConstraint(Sketcher.Constraint("Symmetric", 2, 3, 8, 3, -2))
sketch8.addConstraint(Sketcher.Constraint("Symmetric", 10, 3, 11, 3, -2))
sketch8.addConstraint(Sketcher.Constraint("Diameter", 10, 9.0))
sketch8.addConstraint(Sketcher.Constraint("Radius", 0, 47.0))
sketch8.addConstraint(Sketcher.Constraint("Radius", 2, 10.0))
sketch8.addConstraint(Sketcher.Constraint("Radius", 4, 20.0))
sketch8.addConstraint(Sketcher.Constraint("DistanceX", 1, 1, 1, 2, 25.0))
sketch8.addConstraint(Sketcher.Constraint("DistanceX", 5, 2, 5, 1, 100.0))
sketch8.addConstraint(Sketcher.Constraint("DistanceY", 3, 2, 3, 1, 5.0))
sketch8.addConstraint(Sketcher.Constraint("DistanceY", 10, 3, 4, 3, 5.0))
sketch8.addConstraint(Sketcher.Constraint("DistanceX", 11, 3, 10, 3, 106.63325))
pad6 = body6.newObject("PartDesign::Pad", "Pad005")
pad6.Profile = sketch8
pad6.Length = 6
pad6.Reversed = True
body7 = doc.addObject("PartDesign::Body", "Body006")

# Sketch on XZ plane
sketch9 = body7.newObject("Sketcher::SketchObject", "Sketch008")
sketch9.AttachmentSupport = (doc.getObject("XZ_Plane006"), [""])
sketch9.MapMode = "FlatFace"
sketch9.AttachmentOffset = App.Placement(Vector(0, 0, 6), App.Rotation())
sketch9.addGeometry(Part.LineSegment(Vector(-221.199998, -11, 0), Vector(-91.199998, -11, 0)), False)
sketch9.addGeometry(Part.LineSegment(Vector(-91.199998, -11, 0), Vector(-91.199998, 14, 0)), False)
sketch9.addGeometry(Part.ArcOfCircle(Part.Circle(Vector(-106.199998, 14, 0), Vector(0, 0, 1), 15), math.radians(0), math.radians(90)), False)
sketch9.addGeometry(Part.LineSegment(Vector(-106.199998, 29, 0), Vector(-206.199998, 29, 0)), False)
sketch9.addGeometry(Part.ArcOfCircle(Part.Circle(Vector(-206.199998, 14, 0), Vector(0, 0, 1), 15), math.radians(90), math.radians(180)), False)
sketch9.addGeometry(Part.LineSegment(Vector(-221.199998, 14, 0), Vector(-221.199998, -11, 0)), False)
sketch9.addGeometry(Part.ArcOfCircle(Part.Circle(Vector(-198.699998, 9, 0), Vector(0, 0, 1), 6.5), math.radians(90), math.radians(270)), False)
sketch9.addGeometry(Part.LineSegment(Vector(-198.699998, 15.5, 0), Vector(-178.699998, 15.5, 0)), False)
sketch9.addGeometry(Part.ArcOfCircle(Part.Circle(Vector(-178.699998, 9, 0), Vector(0, 0, 1), 6.5), math.radians(-90), math.radians(90)), False)
sketch9.addGeometry(Part.LineSegment(Vector(-178.699998, 2.5, 0), Vector(-198.699998, 2.5, 0)), False)
sketch9.addGeometry(Part.LineSegment(Vector(-113.699998, 2.5, 0), Vector(-133.699998, 2.5, 0)), False)
sketch9.addGeometry(Part.ArcOfCircle(Part.Circle(Vector(-133.699998, 9, 0), Vector(0, 0, 1), 6.5), math.radians(90), math.radians(270)), False)
sketch9.addGeometry(Part.LineSegment(Vector(-133.699998, 15.5, 0), Vector(-113.699998, 15.5, 0)), False)
sketch9.addGeometry(Part.ArcOfCircle(Part.Circle(Vector(-113.699998, 9, 0), Vector(0, 0, 1), 6.5), math.radians(-90), math.radians(90)), False)
sketch9.addConstraint(Sketcher.Constraint("Coincident", 0, 2, 1, 1))
sketch9.addConstraint(Sketcher.Constraint("Tangent", 1, 2, 2, 1))
sketch9.addConstraint(Sketcher.Constraint("Tangent", 2, 2, 3, 1))
sketch9.addConstraint(Sketcher.Constraint("Tangent", 3, 2, 4, 1))
sketch9.addConstraint(Sketcher.Constraint("Tangent", 4, 2, 5, 1))
sketch9.addConstraint(Sketcher.Constraint("Coincident", 5, 2, 0, 1))
sketch9.addConstraint(Sketcher.Constraint("Tangent", 6, 1, 7, 1))
sketch9.addConstraint(Sketcher.Constraint("Tangent", 7, 2, 8, 2))
sketch9.addConstraint(Sketcher.Constraint("Tangent", 8, 1, 9, 1))
sketch9.addConstraint(Sketcher.Constraint("Tangent", 9, 2, 6, 2))
sketch9.addConstraint(Sketcher.Constraint("Tangent", 10, 2, 11, 2))
sketch9.addConstraint(Sketcher.Constraint("Tangent", 11, 1, 12, 1))
sketch9.addConstraint(Sketcher.Constraint("Tangent", 12, 2, 13, 2))
sketch9.addConstraint(Sketcher.Constraint("Tangent", 13, 1, 10, 1))
sketch9.addConstraint(Sketcher.Constraint("Horizontal", 0))
sketch9.addConstraint(Sketcher.Constraint("Vertical", 1))
sketch9.addConstraint(Sketcher.Constraint("Horizontal", 3))
sketch9.addConstraint(Sketcher.Constraint("Vertical", 5))
sketch9.addConstraint(Sketcher.Constraint("Horizontal", 7))
sketch9.addConstraint(Sketcher.Constraint("Horizontal", 9))
sketch9.addConstraint(Sketcher.Constraint("Horizontal", 10))
sketch9.addConstraint(Sketcher.Constraint("Horizontal", 12))
sketch9.addConstraint(Sketcher.Constraint("Equal", 2, 4))
sketch9.addConstraint(Sketcher.Constraint("Equal", 8, 11))
sketch9.addConstraint(Sketcher.Constraint("Horizontal", 8, 3, 11, 3))
sketch9.addConstraint(Sketcher.Constraint("Equal", 9, 10))
sketch9.addConstraint(Sketcher.Constraint("Radius", 2, 15.0))
sketch9.addConstraint(Sketcher.Constraint("Radius", 6, 6.5))
sketch9.addConstraint(Sketcher.Constraint("DistanceX", 0, 1, 0, 2, 130.0))
sketch9.addConstraint(Sketcher.Constraint("DistanceX", 7, 1, 7, 2, 20.0))
sketch9.addConstraint(Sketcher.Constraint("DistanceY", 1, 1, 1, 2, 25.0))
sketch9.addConstraint(Sketcher.Constraint("DistanceY", -1, 1, 2, 3, 14.0))
sketch9.addConstraint(Sketcher.Constraint("DistanceY", -1, 1, 6, 3, 9.0))
sketch9.addConstraint(Sketcher.Constraint("DistanceX", 8, 3, 11, 3, 45.0))
sketch9.addConstraint(Sketcher.Constraint("DistanceX", 4, 3, 6, 3, 7.5))
sketch9.addConstraint(Sketcher.Constraint("DistanceX", 2, 3, -1, 1, 106.199998))
pad7 = body7.newObject("PartDesign::Pad", "Pad006")
pad7.Profile = sketch9
pad7.Length = 6
body8 = doc.addObject("PartDesign::Body", "Body007")

# Sketch on XZ plane
sketch10 = body8.newObject("Sketcher::SketchObject", "Sketch009")
sketch10.AttachmentSupport = (doc.getObject("XZ_Plane007"), [""])
sketch10.MapMode = "FlatFace"
sketch10.addGeometry(Part.ArcOfCircle(Part.Circle(Vector(-106.199998, 14, 0), Vector(0, 0, 1), 15), math.radians(0), math.radians(90)), False)
sketch10.addGeometry(Part.LineSegment(Vector(-91.199998, 14, 0), Vector(-91.199998, -11, 0)), False)
sketch10.addGeometry(Part.LineSegment(Vector(-91.199998, -11, 0), Vector(-221.199998, -11, 0)), False)
sketch10.addGeometry(Part.LineSegment(Vector(-221.199998, -11, 0), Vector(-221.199998, 14, 0)), False)
sketch10.addGeometry(Part.ArcOfCircle(Part.Circle(Vector(-206.199998, 14, 0), Vector(0, 0, 1), 15), math.radians(90), math.radians(180)), False)
sketch10.addGeometry(Part.LineSegment(Vector(-206.199998, 29, 0), Vector(-106.199998, 29, 0)), False)
sketch10.addGeometry(Part.LineSegment(Vector(-133.699998, 2.5, 0), Vector(-113.699998, 2.5, 0)), False)
sketch10.addGeometry(Part.ArcOfCircle(Part.Circle(Vector(-113.699998, 9, 0), Vector(0, 0, 1), 6.5), math.radians(-90), math.radians(90)), False)
sketch10.addGeometry(Part.LineSegment(Vector(-113.699998, 15.5, 0), Vector(-133.699998, 15.5, 0)), False)
sketch10.addGeometry(Part.ArcOfCircle(Part.Circle(Vector(-133.699998, 9, 0), Vector(0, 0, 1), 6.5), math.radians(90), math.radians(270)), False)
sketch10.addGeometry(Part.LineSegment(Vector(-198.699998, 2.5, 0), Vector(-178.699998, 2.5, 0)), False)
sketch10.addGeometry(Part.ArcOfCircle(Part.Circle(Vector(-178.699998, 9, 0), Vector(0, 0, 1), 6.5), math.radians(-90), math.radians(90)), False)
sketch10.addGeometry(Part.LineSegment(Vector(-178.699998, 15.5, 0), Vector(-198.699998, 15.5, 0)), False)
sketch10.addGeometry(Part.ArcOfCircle(Part.Circle(Vector(-198.699998, 9, 0), Vector(0, 0, 1), 6.5), math.radians(90), math.radians(270)), False)
sketch10.addConstraint(Sketcher.Constraint("Tangent", 0, 1, 1, 1))
sketch10.addConstraint(Sketcher.Constraint("Coincident", 1, 2, 2, 1))
sketch10.addConstraint(Sketcher.Constraint("Coincident", 2, 2, 3, 1))
sketch10.addConstraint(Sketcher.Constraint("Tangent", 3, 2, 4, 2))
sketch10.addConstraint(Sketcher.Constraint("Tangent", 4, 1, 5, 1))
sketch10.addConstraint(Sketcher.Constraint("Tangent", 5, 2, 0, 2))
sketch10.addConstraint(Sketcher.Constraint("Tangent", 6, 2, 7, 1))
sketch10.addConstraint(Sketcher.Constraint("Tangent", 7, 2, 8, 1))
sketch10.addConstraint(Sketcher.Constraint("Tangent", 8, 2, 9, 1))
sketch10.addConstraint(Sketcher.Constraint("Tangent", 9, 2, 6, 1))
sketch10.addConstraint(Sketcher.Constraint("Tangent", 10, 2, 11, 1))
sketch10.addConstraint(Sketcher.Constraint("Tangent", 11, 2, 12, 1))
sketch10.addConstraint(Sketcher.Constraint("Tangent", 12, 2, 13, 1))
sketch10.addConstraint(Sketcher.Constraint("Tangent", 13, 2, 10, 1))
sketch10.addConstraint(Sketcher.Constraint("Vertical", 1))
sketch10.addConstraint(Sketcher.Constraint("Horizontal", 2))
sketch10.addConstraint(Sketcher.Constraint("Vertical", 3))
sketch10.addConstraint(Sketcher.Constraint("Horizontal", 5))
sketch10.addConstraint(Sketcher.Constraint("Horizontal", 6))
sketch10.addConstraint(Sketcher.Constraint("Horizontal", 8))
sketch10.addConstraint(Sketcher.Constraint("Horizontal", 10))
sketch10.addConstraint(Sketcher.Constraint("Horizontal", 12))
sketch10.addConstraint(Sketcher.Constraint("Equal", 0, 4))
sketch10.addConstraint(Sketcher.Constraint("Equal", 9, 11))
sketch10.addConstraint(Sketcher.Constraint("Horizontal", 9, 3, 11, 3))
sketch10.addConstraint(Sketcher.Constraint("Equal", 8, 10))
sketch10.addConstraint(Sketcher.Constraint("Radius", 0, 15.0))
sketch10.addConstraint(Sketcher.Constraint("Radius", 7, 6.5))
sketch10.addConstraint(Sketcher.Constraint("DistanceX", 2, 2, 2, 1, 130.0))
sketch10.addConstraint(Sketcher.Constraint("DistanceX", 6, 1, 6, 2, 20.0))
sketch10.addConstraint(Sketcher.Constraint("DistanceY", 1, 2, 1, 1, 25.0))
sketch10.addConstraint(Sketcher.Constraint("DistanceY", -1, 1, 0, 3, 14.0))
sketch10.addConstraint(Sketcher.Constraint("DistanceY", -1, 1, 7, 3, 9.0))
sketch10.addConstraint(Sketcher.Constraint("DistanceX", 11, 3, 9, 3, 45.0))
sketch10.addConstraint(Sketcher.Constraint("DistanceX", 7, 3, 0, 3, 7.5))
sketch10.addConstraint(Sketcher.Constraint("DistanceX", 0, 3, -1, 1, 106.199998))
pad8 = body8.newObject("PartDesign::Pad", "Pad007")
pad8.Profile = sketch10
pad8.Length = 6
pad8.Reversed = True
body9 = doc.addObject("PartDesign::Body", "Body008")

# Sketch on XY plane
sketch11 = body9.newObject("Sketcher::SketchObject", "Sketch010")
sketch11.AttachmentSupport = (doc.getObject("XY_Plane008"), [""])
sketch11.MapMode = "FlatFace"
sketch11.AttachmentOffset = App.Placement(Vector(0, 0, -11), App.Rotation())
sketch11.addGeometry(Part.ArcOfCircle(Part.Circle(Vector(-223, -55, 0), Vector(0, 0, 1), 8), math.radians(180), math.radians(270)), False)
sketch11.addGeometry(Part.LineSegment(Vector(-231, -55, 0), Vector(-231, 49, 0)), False)
sketch11.addGeometry(Part.ArcOfCircle(Part.Circle(Vector(-223, 49, 0), Vector(0, 0, 1), 8), math.radians(90), math.radians(180)), False)
sketch11.addGeometry(Part.LineSegment(Vector(-223, 57, 0), Vector(-99, 57, 0)), False)
sketch11.addGeometry(Part.ArcOfCircle(Part.Circle(Vector(-99, 49, 0), Vector(0, 0, 1), 8), math.radians(0), math.radians(90)), False)
sketch11.addGeometry(Part.LineSegment(Vector(-91, 49, 0), Vector(-91, -55, 0)), False)
sketch11.addGeometry(Part.ArcOfCircle(Part.Circle(Vector(-99, -55, 0), Vector(0, 0, 1), 8), math.radians(-90), math.radians(0)), False)
sketch11.addGeometry(Part.LineSegment(Vector(-99, -63, 0), Vector(-223, -63, 0)), False)
sketch11.addGeometry(Part.ArcOfCircle(Part.Circle(Vector(-218, 42.5, 0), Vector(0, 0, 1), 6.5), math.radians(0), math.radians(180)), False)
sketch11.addGeometry(Part.LineSegment(Vector(-224.5, 42.5, 0), Vector(-224.5, 32, 0)), False)
sketch11.addGeometry(Part.ArcOfCircle(Part.Circle(Vector(-218, 32, 0), Vector(0, 0, 1), 6.5), math.radians(180), math.radians(360)), False)
sketch11.addGeometry(Part.LineSegment(Vector(-211.5, 32, 0), Vector(-211.5, 42.5, 0)), False)
sketch11.addGeometry(Part.ArcOfCircle(Part.Circle(Vector(-104, 42.5, 0), Vector(0, 0, 1), 6.5), math.radians(0), math.radians(180)), False)
sketch11.addGeometry(Part.LineSegment(Vector(-110.5, 42.5, 0), Vector(-110.5, 32, 0)), False)
sketch11.addGeometry(Part.ArcOfCircle(Part.Circle(Vector(-104, 32, 0), Vector(0, 0, 1), 6.5), math.radians(180), math.radians(360)), False)
sketch11.addGeometry(Part.LineSegment(Vector(-97.5, 32, 0), Vector(-97.5, 42.5, 0)), False)
sketch11.addGeometry(Part.ArcOfCircle(Part.Circle(Vector(-218, -38, 0), Vector(0, 0, 1), 6.5), math.radians(0), math.radians(180)), False)
sketch11.addGeometry(Part.LineSegment(Vector(-224.5, -38, 0), Vector(-224.5, -48.5, 0)), False)
sketch11.addGeometry(Part.ArcOfCircle(Part.Circle(Vector(-218, -48.5, 0), Vector(0, 0, 1), 6.5), math.radians(180), math.radians(360)), False)
sketch11.addGeometry(Part.LineSegment(Vector(-211.5, -48.5, 0), Vector(-211.5, -38, 0)), False)
sketch11.addGeometry(Part.ArcOfCircle(Part.Circle(Vector(-104, -38, 0), Vector(0, 0, 1), 6.5), math.radians(0), math.radians(180)), False)
sketch11.addGeometry(Part.LineSegment(Vector(-110.5, -38, 0), Vector(-110.5, -48.5, 0)), False)
sketch11.addGeometry(Part.ArcOfCircle(Part.Circle(Vector(-104, -48.5, 0), Vector(0, 0, 1), 6.5), math.radians(180), math.radians(360)), False)
sketch11.addGeometry(Part.LineSegment(Vector(-97.5, -48.5, 0), Vector(-97.5, -38, 0)), False)
sketch11.addConstraint(Sketcher.Constraint("Tangent", 0, 1, 1, 1))
sketch11.addConstraint(Sketcher.Constraint("Tangent", 1, 2, 2, 2))
sketch11.addConstraint(Sketcher.Constraint("Tangent", 2, 1, 3, 1))
sketch11.addConstraint(Sketcher.Constraint("Tangent", 3, 2, 4, 2))
sketch11.addConstraint(Sketcher.Constraint("Tangent", 4, 1, 5, 1))
sketch11.addConstraint(Sketcher.Constraint("Tangent", 5, 2, 6, 2))
sketch11.addConstraint(Sketcher.Constraint("Tangent", 6, 1, 7, 1))
sketch11.addConstraint(Sketcher.Constraint("Tangent", 7, 2, 0, 2))
sketch11.addConstraint(Sketcher.Constraint("Tangent", 8, 2, 9, 1))
sketch11.addConstraint(Sketcher.Constraint("Tangent", 9, 2, 10, 1))
sketch11.addConstraint(Sketcher.Constraint("Tangent", 10, 2, 11, 1))
sketch11.addConstraint(Sketcher.Constraint("Tangent", 11, 2, 8, 1))
sketch11.addConstraint(Sketcher.Constraint("Tangent", 12, 2, 13, 1))
sketch11.addConstraint(Sketcher.Constraint("Tangent", 13, 2, 14, 1))
sketch11.addConstraint(Sketcher.Constraint("Tangent", 14, 2, 15, 1))
sketch11.addConstraint(Sketcher.Constraint("Tangent", 15, 2, 12, 1))
sketch11.addConstraint(Sketcher.Constraint("Tangent", 16, 2, 17, 1))
sketch11.addConstraint(Sketcher.Constraint("Tangent", 17, 2, 18, 1))
sketch11.addConstraint(Sketcher.Constraint("Tangent", 18, 2, 19, 1))
sketch11.addConstraint(Sketcher.Constraint("Tangent", 19, 2, 16, 1))
sketch11.addConstraint(Sketcher.Constraint("Tangent", 20, 2, 21, 1))
sketch11.addConstraint(Sketcher.Constraint("Tangent", 21, 2, 22, 1))
sketch11.addConstraint(Sketcher.Constraint("Tangent", 22, 2, 23, 1))
sketch11.addConstraint(Sketcher.Constraint("Tangent", 23, 2, 20, 1))
sketch11.addConstraint(Sketcher.Constraint("Vertical", 1))
sketch11.addConstraint(Sketcher.Constraint("Horizontal", 3))
sketch11.addConstraint(Sketcher.Constraint("Vertical", 5))
sketch11.addConstraint(Sketcher.Constraint("Horizontal", 7))
sketch11.addConstraint(Sketcher.Constraint("Vertical", 9))
sketch11.addConstraint(Sketcher.Constraint("Vertical", 11))
sketch11.addConstraint(Sketcher.Constraint("Vertical", 13))
sketch11.addConstraint(Sketcher.Constraint("Vertical", 15))
sketch11.addConstraint(Sketcher.Constraint("Vertical", 17))
sketch11.addConstraint(Sketcher.Constraint("Vertical", 19))
sketch11.addConstraint(Sketcher.Constraint("Vertical", 21))
sketch11.addConstraint(Sketcher.Constraint("Vertical", 23))
sketch11.addConstraint(Sketcher.Constraint("Equal", 0, 2))
sketch11.addConstraint(Sketcher.Constraint("Equal", 2, 4))
sketch11.addConstraint(Sketcher.Constraint("Equal", 4, 6))
sketch11.addConstraint(Sketcher.Constraint("Equal", 10, 12))
sketch11.addConstraint(Sketcher.Constraint("Equal", 14, 16))
sketch11.addConstraint(Sketcher.Constraint("Equal", 18, 20))
sketch11.addConstraint(Sketcher.Constraint("Horizontal", 8, 3, 12, 3))
sketch11.addConstraint(Sketcher.Constraint("Horizontal", 10, 3, 14, 3))
sketch11.addConstraint(Sketcher.Constraint("Horizontal", 16, 3, 20, 3))
sketch11.addConstraint(Sketcher.Constraint("Horizontal", 18, 3, 22, 3))
sketch11.addConstraint(Sketcher.Constraint("Vertical", 10, 3, 16, 3))
sketch11.addConstraint(Sketcher.Constraint("Vertical", 14, 3, 20, 3))
sketch11.addConstraint(Sketcher.Constraint("Equal", 15, 17))
sketch11.addConstraint(Sketcher.Constraint("Radius", 0, 8.0))
sketch11.addConstraint(Sketcher.Constraint("Radius", 8, 6.5))
sketch11.addConstraint(Sketcher.Constraint("DistanceX", 3, 1, 3, 2, 124.0))
sketch11.addConstraint(Sketcher.Constraint("DistanceY", 1, 1, 1, 2, 104.0))
sketch11.addConstraint(Sketcher.Constraint("DistanceY", 9, 2, 9, 1, 10.5))
sketch11.addConstraint(Sketcher.Constraint("DistanceX", 0, 3, -1, 1, 223.0))
sketch11.addConstraint(Sketcher.Constraint("DistanceY", 0, 3, -1, 1, 55.0))
sketch11.addConstraint(Sketcher.Constraint("DistanceX", 8, 3, -1, 1, 218.0))
sketch11.addConstraint(Sketcher.Constraint("DistanceY", -1, 1, 10, 3, 32.0))
sketch11.addConstraint(Sketcher.Constraint("DistanceX", 12, 3, -1, 1, 104.0))
sketch11.addConstraint(Sketcher.Constraint("DistanceY", 16, 3, -1, 1, 38.0))
pad9 = body9.newObject("PartDesign::Pad", "Pad008")
pad9.Profile = sketch11
pad9.Length = 6
pad9.Reversed = True

doc.recompute()
